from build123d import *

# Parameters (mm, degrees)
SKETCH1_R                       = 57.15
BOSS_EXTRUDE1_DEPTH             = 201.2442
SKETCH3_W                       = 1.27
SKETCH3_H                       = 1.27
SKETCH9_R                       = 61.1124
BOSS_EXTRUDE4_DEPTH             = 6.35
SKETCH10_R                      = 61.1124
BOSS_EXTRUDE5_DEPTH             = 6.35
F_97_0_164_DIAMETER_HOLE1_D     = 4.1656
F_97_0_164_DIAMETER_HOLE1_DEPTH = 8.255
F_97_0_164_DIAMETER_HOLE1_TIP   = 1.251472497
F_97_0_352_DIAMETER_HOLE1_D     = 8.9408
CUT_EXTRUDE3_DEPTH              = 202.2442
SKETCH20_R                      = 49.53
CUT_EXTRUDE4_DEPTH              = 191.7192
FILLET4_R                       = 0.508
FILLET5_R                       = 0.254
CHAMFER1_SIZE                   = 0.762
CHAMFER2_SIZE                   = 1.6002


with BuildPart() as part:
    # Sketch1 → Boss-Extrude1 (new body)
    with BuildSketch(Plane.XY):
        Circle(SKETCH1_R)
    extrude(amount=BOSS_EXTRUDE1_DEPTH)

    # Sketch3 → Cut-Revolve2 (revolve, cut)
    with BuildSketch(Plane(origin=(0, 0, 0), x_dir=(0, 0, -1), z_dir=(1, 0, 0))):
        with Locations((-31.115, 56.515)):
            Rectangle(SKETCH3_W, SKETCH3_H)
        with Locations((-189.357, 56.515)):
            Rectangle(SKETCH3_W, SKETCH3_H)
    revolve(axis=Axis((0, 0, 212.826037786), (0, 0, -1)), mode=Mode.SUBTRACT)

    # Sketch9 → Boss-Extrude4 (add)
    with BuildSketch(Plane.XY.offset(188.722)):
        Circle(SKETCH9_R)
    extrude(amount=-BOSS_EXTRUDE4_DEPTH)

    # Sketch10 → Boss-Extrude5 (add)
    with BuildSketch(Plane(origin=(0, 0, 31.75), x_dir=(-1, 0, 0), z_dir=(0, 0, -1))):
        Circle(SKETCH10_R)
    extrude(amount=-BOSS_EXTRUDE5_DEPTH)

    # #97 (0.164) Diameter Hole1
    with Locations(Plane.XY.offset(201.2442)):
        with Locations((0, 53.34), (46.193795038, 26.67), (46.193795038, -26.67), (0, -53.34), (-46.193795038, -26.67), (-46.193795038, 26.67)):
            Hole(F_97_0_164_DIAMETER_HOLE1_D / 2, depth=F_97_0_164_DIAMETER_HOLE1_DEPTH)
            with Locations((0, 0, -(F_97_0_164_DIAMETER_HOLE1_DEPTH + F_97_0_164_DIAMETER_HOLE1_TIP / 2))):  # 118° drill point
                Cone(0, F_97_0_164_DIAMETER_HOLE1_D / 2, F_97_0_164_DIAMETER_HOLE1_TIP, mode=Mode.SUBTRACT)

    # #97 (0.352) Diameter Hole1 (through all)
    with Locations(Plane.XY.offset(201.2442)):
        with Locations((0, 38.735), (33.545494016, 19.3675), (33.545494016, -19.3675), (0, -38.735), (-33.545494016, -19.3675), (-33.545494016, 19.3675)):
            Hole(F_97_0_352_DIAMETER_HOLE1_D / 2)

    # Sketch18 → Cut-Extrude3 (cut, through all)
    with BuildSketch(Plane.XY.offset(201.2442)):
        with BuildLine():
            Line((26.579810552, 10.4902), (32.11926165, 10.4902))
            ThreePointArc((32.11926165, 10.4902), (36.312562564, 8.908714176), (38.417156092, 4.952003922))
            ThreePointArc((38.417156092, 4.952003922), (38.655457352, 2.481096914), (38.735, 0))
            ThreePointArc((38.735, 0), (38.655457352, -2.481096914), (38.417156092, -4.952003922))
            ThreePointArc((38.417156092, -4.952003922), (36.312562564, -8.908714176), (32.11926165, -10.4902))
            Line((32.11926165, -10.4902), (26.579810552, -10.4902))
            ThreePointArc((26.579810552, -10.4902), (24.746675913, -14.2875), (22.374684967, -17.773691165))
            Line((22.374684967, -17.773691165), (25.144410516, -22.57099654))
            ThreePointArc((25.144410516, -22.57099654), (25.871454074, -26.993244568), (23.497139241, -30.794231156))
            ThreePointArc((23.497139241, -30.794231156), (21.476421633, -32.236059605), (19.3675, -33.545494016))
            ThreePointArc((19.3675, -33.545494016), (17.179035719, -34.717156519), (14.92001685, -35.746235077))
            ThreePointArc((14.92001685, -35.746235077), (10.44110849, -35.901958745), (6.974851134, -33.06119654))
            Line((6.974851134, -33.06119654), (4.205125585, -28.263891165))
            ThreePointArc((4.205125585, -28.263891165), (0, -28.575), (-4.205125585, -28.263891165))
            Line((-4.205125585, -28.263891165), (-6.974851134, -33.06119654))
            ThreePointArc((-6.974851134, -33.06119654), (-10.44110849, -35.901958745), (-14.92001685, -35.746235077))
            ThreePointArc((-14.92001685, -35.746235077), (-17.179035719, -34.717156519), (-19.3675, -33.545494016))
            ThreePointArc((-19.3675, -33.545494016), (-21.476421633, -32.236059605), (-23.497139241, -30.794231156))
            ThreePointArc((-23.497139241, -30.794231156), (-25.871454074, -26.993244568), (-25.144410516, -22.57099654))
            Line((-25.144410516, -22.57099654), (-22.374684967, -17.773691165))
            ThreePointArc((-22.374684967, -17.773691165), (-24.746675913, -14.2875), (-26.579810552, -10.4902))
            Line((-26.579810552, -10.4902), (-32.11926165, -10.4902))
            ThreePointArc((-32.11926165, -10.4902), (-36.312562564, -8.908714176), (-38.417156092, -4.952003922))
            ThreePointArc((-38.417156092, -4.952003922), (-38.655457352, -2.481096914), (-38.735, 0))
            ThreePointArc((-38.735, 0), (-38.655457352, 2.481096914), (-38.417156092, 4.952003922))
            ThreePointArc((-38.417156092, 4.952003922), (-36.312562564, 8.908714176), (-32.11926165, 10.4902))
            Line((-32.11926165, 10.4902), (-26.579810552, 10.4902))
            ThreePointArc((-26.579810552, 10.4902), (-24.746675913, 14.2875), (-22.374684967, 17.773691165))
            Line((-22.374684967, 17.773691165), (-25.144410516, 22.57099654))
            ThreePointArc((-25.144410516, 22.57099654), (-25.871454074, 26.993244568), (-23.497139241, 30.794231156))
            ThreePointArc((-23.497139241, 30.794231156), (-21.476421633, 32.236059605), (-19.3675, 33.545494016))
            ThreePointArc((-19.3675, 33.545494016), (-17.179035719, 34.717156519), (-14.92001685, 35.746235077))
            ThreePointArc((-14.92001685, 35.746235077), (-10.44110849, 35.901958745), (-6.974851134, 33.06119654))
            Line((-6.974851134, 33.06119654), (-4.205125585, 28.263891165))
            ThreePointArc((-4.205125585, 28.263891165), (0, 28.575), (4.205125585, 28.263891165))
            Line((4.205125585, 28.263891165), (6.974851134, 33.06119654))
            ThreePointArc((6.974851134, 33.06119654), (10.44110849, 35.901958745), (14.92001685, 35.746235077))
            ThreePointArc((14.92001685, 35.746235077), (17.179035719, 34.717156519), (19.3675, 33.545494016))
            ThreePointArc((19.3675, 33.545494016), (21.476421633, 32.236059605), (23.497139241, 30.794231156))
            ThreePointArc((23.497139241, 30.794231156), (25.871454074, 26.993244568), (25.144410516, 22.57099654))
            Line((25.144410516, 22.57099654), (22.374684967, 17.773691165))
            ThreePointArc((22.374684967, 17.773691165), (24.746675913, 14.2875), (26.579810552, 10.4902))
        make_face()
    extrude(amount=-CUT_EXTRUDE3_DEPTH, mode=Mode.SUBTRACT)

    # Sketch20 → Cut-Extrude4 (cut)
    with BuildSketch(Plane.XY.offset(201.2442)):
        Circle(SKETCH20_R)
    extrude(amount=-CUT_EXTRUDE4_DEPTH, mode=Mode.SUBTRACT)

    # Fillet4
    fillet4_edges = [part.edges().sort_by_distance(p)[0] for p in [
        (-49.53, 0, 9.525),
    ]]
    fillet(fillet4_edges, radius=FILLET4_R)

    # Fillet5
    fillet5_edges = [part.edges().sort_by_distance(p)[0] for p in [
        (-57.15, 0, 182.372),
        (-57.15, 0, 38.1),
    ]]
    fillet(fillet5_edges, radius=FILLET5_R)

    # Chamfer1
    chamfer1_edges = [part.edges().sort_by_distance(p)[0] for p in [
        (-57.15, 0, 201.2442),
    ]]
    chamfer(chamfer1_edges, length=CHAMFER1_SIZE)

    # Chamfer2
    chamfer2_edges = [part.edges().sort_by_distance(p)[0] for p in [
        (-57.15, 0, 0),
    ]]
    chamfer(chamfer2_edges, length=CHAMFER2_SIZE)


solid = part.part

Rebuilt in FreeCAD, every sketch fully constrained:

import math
import FreeCAD as App
import Part
import Sketcher

V = App.Vector
Q = App.Units.Quantity


def edges_at(feature, points):
    """Names of the edges that pass closest to the given points."""
    edges = feature.Shape.Edges
    near = lambda p: min(range(len(edges)), key=lambda i: edges[i].distToShape(Part.Vertex(*p))[0])
    return sorted({f"Edge{near(p) + 1}" for p in points})

doc = App.newDocument("Part")
body = doc.addObject("PartDesign::Body", "Body")

# Sketch on XY plane
sketch1 = body.newObject("Sketcher::SketchObject", "Sketch")
sketch1.AttachmentSupport = (doc.getObject("XY_Plane"), [""])
sketch1.MapMode = "FlatFace"
sketch1.addGeometry(Part.Circle(V(0, 0, 0), V(0, 0, 1), 57), False)
sketch1.addConstraint([
    Sketcher.Constraint("Coincident", 0, 3, -1, 1),
    Sketcher.Constraint("Diameter", 0, Q("4.5 in")),
])
pad1 = body.newObject("PartDesign::Pad", "Pad")
pad1.Profile = sketch1
pad1.Length = Q("7.923 in")

# Sketch on YZ plane
sketch2 = body.newObject("Sketcher::SketchObject", "Sketch001")
sketch2.AttachmentSupport = (doc.getObject("YZ_Plane"), [""])
sketch2.MapMode = "FlatFace"
sketch2.addGeometry([
    Part.LineSegment(V(57.1, 31.8, 0), V(55.9, 31.8, 0)),  # 0
    Part.LineSegment(V(55.9, 31.8, 0), V(55.9, 30.5, 0)),  # 1
    Part.LineSegment(V(55.9, 30.5, 0), V(57.1, 30.5, 0)),  # 2
    Part.LineSegment(V(57.1, 30.5, 0), V(57.1, 31.8, 0)),  # 3
    Part.LineSegment(V(57.1, 190, 0), V(55.9, 190, 0)),  # 4
    Part.LineSegment(V(55.9, 190, 0), V(55.9, 188.7, 0)),  # 5
    Part.LineSegment(V(55.9, 188.7, 0), V(57.1, 188.7, 0)),  # 6
    Part.LineSegment(V(57.1, 188.7, 0), V(57.1, 190, 0)),  # 7
], False)
sketch2.addConstraint([
    Sketcher.Constraint("Coincident", 0, 2, 1, 1),
    Sketcher.Constraint("Coincident", 1, 2, 2, 1),
    Sketcher.Constraint("Coincident", 2, 2, 3, 1),
    Sketcher.Constraint("Coincident", 3, 2, 0, 1),
    Sketcher.Constraint("Coincident", 4, 2, 5, 1),
    Sketcher.Constraint("Coincident", 5, 2, 6, 1),
    Sketcher.Constraint("Coincident", 6, 2, 7, 1),
    Sketcher.Constraint("Coincident", 7, 2, 4, 1),
    Sketcher.Constraint("Horizontal", 0),
    Sketcher.Constraint("Vertical", 1),
    Sketcher.Constraint("Horizontal", 2),
    Sketcher.Constraint("Vertical", 3),
    Sketcher.Constraint("Horizontal", 4),
    Sketcher.Constraint("Vertical", 5),
    Sketcher.Constraint("Horizontal", 6),
    Sketcher.Constraint("Vertical", 7),
    Sketcher.Constraint("Vertical", 1, 2, 4, 2),
    Sketcher.Constraint("Vertical", 3, 2, 6, 2),
    Sketcher.Constraint("Equal", 6, 1),
    Sketcher.Constraint("Equal", 3, 5),
    Sketcher.Constraint("DistanceX", 0, 2, 0, 1, Q("0.05 in")),
    Sketcher.Constraint("DistanceX", -1, 1, 0, 2, Q("2.2 in")),
    Sketcher.Constraint("DistanceY", -1, 1, 1, 2, Q("1.2 in")),
    Sketcher.Constraint("DistanceY", -1, 1, 4, 2, Q("7.48 in")),
])
groove = body.newObject("PartDesign::Groove", "Groove")
groove.Profile = sketch2
groove.ReferenceAxis = (sketch2, ["V_Axis"])
groove.Angle = 360

# Sketch on XY plane
sketch3 = body.newObject("Sketcher::SketchObject", "Sketch002")
sketch3.AttachmentSupport = (doc.getObject("XY_Plane"), [""])
sketch3.MapMode = "FlatFace"
sketch3.AttachmentOffset = App.Placement(V(0, 0, 7.43 * 25.4), App.Rotation())
sketch3.addGeometry(Part.Circle(V(0, 0, 0), V(0, 0, 1), 61), False)
sketch3.addConstraint([
    Sketcher.Constraint("Coincident", 0, 3, -1, 1),
    Sketcher.Constraint("Diameter", 0, Q("4.812 in")),
])
pad2 = body.newObject("PartDesign::Pad", "Pad001")
pad2.Profile = sketch3
pad2.Length = Q("0.25 in")
pad2.Reversed = True

# Sketch on XY plane
sketch4 = body.newObject("Sketcher::SketchObject", "Sketch003")
sketch4.AttachmentSupport = (doc.getObject("XY_Plane"), [""])
sketch4.MapMode = "FlatFace"
sketch4.AttachmentOffset = App.Placement(V(0, 0, 1.25 * 25.4), App.Rotation())
sketch4.addGeometry(Part.Circle(V(0, 0, 0), V(0, 0, 1), 61), False)
sketch4.addConstraint([
    Sketcher.Constraint("Coincident", 0, 3, -1, 1),
    Sketcher.Constraint("Diameter", 0, Q("4.812 in")),
])
pad3 = body.newObject("PartDesign::Pad", "Pad002")
pad3.Profile = sketch4
pad3.Length = Q("0.25 in")

# Sketch on XY plane
sketch5 = body.newObject("Sketcher::SketchObject", "Sketch004")
sketch5.AttachmentSupport = (doc.getObject("XY_Plane"), [""])
sketch5.MapMode = "FlatFace"
sketch5.AttachmentOffset = App.Placement(V(0, 0, 7.923 * 25.4), App.Rotation())
sketch5.addGeometry([
    Part.Circle(V(0, 53.3, 0), V(0, 0, 1), 2.1),  # 0
    Part.Circle(V(46.2, 26.7, 0), V(0, 0, 1), 2.1),  # 1
    Part.Circle(V(46.2, -26.7, 0), V(0, 0, 1), 2.1),  # 2
    Part.Circle(V(0, -53.3, 0), V(0, 0, 1), 2.1),  # 3
    Part.Circle(V(-46.2, -26.7, 0), V(0, 0, 1), 2.1),  # 4
    Part.Circle(V(-46.2, 26.7, 0), V(0, 0, 1), 2.1),  # 5
], False)
sketch5.addConstraint([
    Sketcher.Constraint("Equal", 0, 1),
    Sketcher.Constraint("Equal", 1, 2),
    Sketcher.Constraint("Equal", 2, 3),
    Sketcher.Constraint("Equal", 3, 4),
    Sketcher.Constraint("Equal", 4, 5),
    Sketcher.Constraint("Symmetric", 0, 3, 3, 3, -1, 1),
    Sketcher.Constraint("Symmetric", 1, 3, 4, 3, -1, 1),
    Sketcher.Constraint("Symmetric", 2, 3, 5, 3, -1, 1),
    Sketcher.Constraint("Symmetric", 2, 3, 4, 3, -2),
    Sketcher.Constraint("PointOnObject", 0, 3, -2),
    Sketcher.Constraint("Diameter", 0, Q("0.164 in")),
    Sketcher.Constraint("DistanceY", -1, 1, 0, 3, Q("2.1 in")),
    Sketcher.Constraint("DistanceY", 2, 3, 1, 3, Q("2.1 in")),
    Sketcher.Constraint("DistanceX", 4, 3, 2, 3, 92.38759),
])
doc.recompute()
hole = body.newObject("PartDesign::Hole", "Hole")
hole.Profile = sketch5
hole.ThreadType = "None"
hole.Diameter = Q("0.164 in")
hole.DepthType = "Dimension"
hole.Depth = Q("0.325 in")
hole.DrillPoint = "Angled"
hole.DrillPointAngle = 118

# Sketch on XY plane
sketch6 = body.newObject("Sketcher::SketchObject", "Sketch005")
sketch6.AttachmentSupport = (doc.getObject("XY_Plane"), [""])
sketch6.MapMode = "FlatFace"
sketch6.AttachmentOffset = App.Placement(V(0, 0, 7.923 * 25.4), App.Rotation())
sketch6.addGeometry([
    Part.Circle(V(0, 38.7, 0), V(0, 0, 1), 4.5),  # 0
    Part.Circle(V(33.5, 19.4, 0), V(0, 0, 1), 4.5),  # 1
    Part.Circle(V(33.5, -19.4, 0), V(0, 0, 1), 4.5),  # 2
    Part.Circle(V(0, -38.7, 0), V(0, 0, 1), 4.5),  # 3
    Part.Circle(V(-33.5, -19.4, 0), V(0, 0, 1), 4.5),  # 4
    Part.Circle(V(-33.5, 19.4, 0), V(0, 0, 1), 4.5),  # 5
], False)
sketch6.addConstraint([
    Sketcher.Constraint("Equal", 0, 1),
    Sketcher.Constraint("Equal", 1, 2),
    Sketcher.Constraint("Equal", 2, 3),
    Sketcher.Constraint("Equal", 3, 4),
    Sketcher.Constraint("Equal", 4, 5),
    Sketcher.Constraint("Symmetric", 0, 3, 3, 3, -1, 1),
    Sketcher.Constraint("Symmetric", 1, 3, 4, 3, -1, 1),
    Sketcher.Constraint("Symmetric", 2, 3, 5, 3, -1, 1),
    Sketcher.Constraint("Symmetric", 2, 3, 4, 3, -2),
    Sketcher.Constraint("PointOnObject", 0, 3, -2),
    Sketcher.Constraint("Diameter", 0, Q("0.352 in")),
    Sketcher.Constraint("DistanceY", 3, 3, 0, 3, Q("3.05 in")),
    Sketcher.Constraint("DistanceY", 2, 3, 1, 3, Q("1.525 in")),
    Sketcher.Constraint("DistanceX", 4, 3, 2, 3, 67.090988),
])
doc.recompute()
hole2 = body.newObject("PartDesign::Hole", "Hole001")
hole2.Profile = sketch6
hole2.ThreadType = "None"
hole2.Diameter = Q("0.352 in")
hole2.DepthType = "ThroughAll"

# Sketch on XY plane
sketch7 = body.newObject("Sketcher::SketchObject", "Sketch006")
sketch7.AttachmentSupport = (doc.getObject("XY_Plane"), [""])
sketch7.MapMode = "FlatFace"
sketch7.AttachmentOffset = App.Placement(V(0, 0, 7.923 * 25.4), App.Rotation())
sketch7.addGeometry([
    Part.LineSegment(V(32.1, 10.5, 0), V(26.6, 10.5, 0)),  # 0
    Part.ArcOfCircle(Part.Circle(V(0, 0, 0), V(0, 0, 1), 28.6), math.radians(21.54), math.radians(38.46)),  # 1
    Part.LineSegment(V(22.4, 17.8, 0), V(25.1, 22.6, 0)),  # 2
    Part.ArcOfCircle(Part.Circle(V(19.6, 25.7, 0), V(0, 0, 1), 6.3), math.radians(-30), math.radians(53)),  # 3
    Part.ArcOfCircle(Part.Circle(V(0, 0, 0), V(0, 0, 1), 38.7), math.radians(52.66), math.radians(60)),  # 4
    Part.ArcOfCircle(Part.Circle(V(0, 0, 0), V(0, 0, 1), 38.7), math.radians(60), math.radians(67.34)),  # 5
    Part.ArcOfCircle(Part.Circle(V(12.5, 29.9, 0), V(0, 0, 1), 6.3), math.radians(67), math.radians(150)),  # 6
    Part.LineSegment(V(7, 33.1, 0), V(4.2, 28.3, 0)),  # 7
    Part.ArcOfCircle(Part.Circle(V(0, 0, 0), V(0, 0, 1), 28.6), math.radians(81.54), math.radians(98.46)),  # 8
    Part.LineSegment(V(-4.2, 28.3, 0), V(-7, 33.1, 0)),  # 9
    Part.ArcOfCircle(Part.Circle(V(-12.5, 29.9, 0), V(0, 0, 1), 6.3), math.radians(30), math.radians(113)),  # 10
    Part.ArcOfCircle(Part.Circle(V(0, 0, 0), V(0, 0, 1), 38.7), math.radians(112.66), math.radians(120)),  # 11
    Part.ArcOfCircle(Part.Circle(V(0, 0, 0), V(0, 0, 1), 38.7), math.radians(120), math.radians(127.34)),  # 12
    Part.ArcOfCircle(Part.Circle(V(-19.6, 25.7, 0), V(0, 0, 1), 6.3), math.radians(127), math.radians(210)),  # 13
    Part.LineSegment(V(-25.1, 22.6, 0), V(-22.4, 17.8, 0)),  # 14
    Part.ArcOfCircle(Part.Circle(V(0, 0, 0), V(0, 0, 1), 28.6), math.radians(141.54), math.radians(158.46)),  # 15
    Part.LineSegment(V(-26.6, 10.5, 0), V(-32.1, 10.5, 0)),  # 16
    Part.ArcOfCircle(Part.Circle(V(-32.1, 4.1, 0), V(0, 0, 1), 6.4), math.radians(90), math.radians(173)),  # 17
    Part.ArcOfCircle(Part.Circle(V(0, 0, 0), V(0, 0, 1), 38.7), math.radians(172.66), math.radians(180)),  # 18
    Part.ArcOfCircle(Part.Circle(V(0, 0, 0), V(0, 0, 1), 38.7), math.radians(-180), math.radians(-172.66)),  # 19
    Part.ArcOfCircle(Part.Circle(V(-32.1, -4.1, 0), V(0, 0, 1), 6.4), math.radians(-173), math.radians(-90)),  # 20
    Part.LineSegment(V(-32.1, -10.5, 0), V(-26.6, -10.5, 0)),  # 21
    Part.ArcOfCircle(Part.Circle(V(0, 0, 0), V(0, 0, 1), 28.6), math.radians(-158.46), math.radians(-141.54)),  # 22
    Part.LineSegment(V(-22.4, -17.8, 0), V(-25.1, -22.6, 0)),  # 23
    Part.ArcOfCircle(Part.Circle(V(-19.6, -25.7, 0), V(0, 0, 1), 6.3), math.radians(150), math.radians(233)),  # 24
    Part.ArcOfCircle(Part.Circle(V(0, 0, 0), V(0, 0, 1), 38.7), math.radians(-127.34), math.radians(-120)),  # 25
    Part.ArcOfCircle(Part.Circle(V(0, 0, 0), V(0, 0, 1), 38.7), math.radians(-120), math.radians(-112.66)),  # 26
    Part.ArcOfCircle(Part.Circle(V(-12.5, -29.9, 0), V(0, 0, 1), 6.3), math.radians(-113), math.radians(-30)),  # 27
    Part.LineSegment(V(-7, -33.1, 0), V(-4.2, -28.3, 0)),  # 28
    Part.ArcOfCircle(Part.Circle(V(0, 0, 0), V(0, 0, 1), 28.6), math.radians(-98.46), math.radians(-81.54)),  # 29
    Part.LineSegment(V(4.2, -28.3, 0), V(7, -33.1, 0)),  # 30
    Part.ArcOfCircle(Part.Circle(V(12.5, -29.9, 0), V(0, 0, 1), 6.3), math.radians(-150), math.radians(-67)),  # 31
    Part.ArcOfCircle(Part.Circle(V(0, 0, 0), V(0, 0, 1), 38.7), math.radians(-67.34), math.radians(-60)),  # 32
    Part.ArcOfCircle(Part.Circle(V(0, 0, 0), V(0, 0, 1), 38.7), math.radians(-60), math.radians(-52.66)),  # 33
    Part.ArcOfCircle(Part.Circle(V(19.6, -25.7, 0), V(0, 0, 1), 6.3), math.radians(-53), math.radians(30)),  # 34
    Part.LineSegment(V(25.1, -22.6, 0), V(22.4, -17.8, 0)),  # 35
    Part.ArcOfCircle(Part.Circle(V(0, 0, 0), V(0, 0, 1), 28.6), math.radians(-38.46), math.radians(-21.54)),  # 36
    Part.LineSegment(V(26.6, -10.5, 0), V(32.1, -10.5, 0)),  # 37
    Part.ArcOfCircle(Part.Circle(V(32.1, -4.1, 0), V(0, 0, 1), 6.4), math.radians(-90), math.radians(-7)),  # 38
    Part.ArcOfCircle(Part.Circle(V(0, 0, 0), V(0, 0, 1), 38.7), math.radians(-7.34), math.radians(0)),  # 39
    Part.ArcOfCircle(Part.Circle(V(0, 0, 0), V(0, 0, 1), 38.7), math.radians(0), math.radians(7.34)),  # 40
    Part.ArcOfCircle(Part.Circle(V(32.1, 4.1, 0), V(0, 0, 1), 6.4), math.radians(7), math.radians(90)),  # 41
], False)
sketch7.addConstraint([
    Sketcher.Constraint("Coincident", 0, 2, 1, 1),
    Sketcher.Constraint("Coincident", 1, 2, 2, 1),
    Sketcher.Constraint("Tangent", 2, 2, 3, 1),
    Sketcher.Constraint("Tangent", 3, 2, 4, 1),
    Sketcher.Constraint("Tangent", 4, 2, 5, 1),
    Sketcher.Constraint("Tangent", 5, 2, 6, 1),
    Sketcher.Constraint("Tangent", 6, 2, 7, 1),
    Sketcher.Constraint("Coincident", 7, 2, 8, 1),
    Sketcher.Constraint("Coincident", 8, 2, 9, 1),
    Sketcher.Constraint("Tangent", 9, 2, 10, 1),
    Sketcher.Constraint("Tangent", 10, 2, 11, 1),
    Sketcher.Constraint("Tangent", 11, 2, 12, 1),
    Sketcher.Constraint("Tangent", 12, 2, 13, 1),
    Sketcher.Constraint("Tangent", 13, 2, 14, 1),
    Sketcher.Constraint("Coincident", 14, 2, 15, 1),
    Sketcher.Constraint("Coincident", 15, 2, 16, 1),
    Sketcher.Constraint("Tangent", 16, 2, 17, 1),
    Sketcher.Constraint("Tangent", 17, 2, 18, 1),
    Sketcher.Constraint("Tangent", 18, 2, 19, 1),
    Sketcher.Constraint("Tangent", 19, 2, 20, 1),
    Sketcher.Constraint("Tangent", 20, 2, 21, 1),
    Sketcher.Constraint("Coincident", 21, 2, 22, 1),
    Sketcher.Constraint("Coincident", 22, 2, 23, 1),
    Sketcher.Constraint("Tangent", 23, 2, 24, 1),
    Sketcher.Constraint("Tangent", 24, 2, 25, 1),
    Sketcher.Constraint("Tangent", 25, 2, 26, 1),
    Sketcher.Constraint("Tangent", 26, 2, 27, 1),
    Sketcher.Constraint("Tangent", 27, 2, 28, 1),
    Sketcher.Constraint("Coincident", 28, 2, 29, 1),
    Sketcher.Constraint("Coincident", 29, 2, 30, 1),
    Sketcher.Constraint("Tangent", 30, 2, 31, 1),
    Sketcher.Constraint("Tangent", 31, 2, 32, 1),
    Sketcher.Constraint("Tangent", 32, 2, 33, 1),
    Sketcher.Constraint("Tangent", 33, 2, 34, 1),
    Sketcher.Constraint("Tangent", 34, 2, 35, 1),
    Sketcher.Constraint("Coincident", 35, 2, 36, 1),
    Sketcher.Constraint("Coincident", 36, 2, 37, 1),
    Sketcher.Constraint("Tangent", 37, 2, 38, 1),
    Sketcher.Constraint("Tangent", 38, 2, 39, 1),
    Sketcher.Constraint("Tangent", 39, 2, 40, 1),
    Sketcher.Constraint("Tangent", 40, 2, 41, 1),
    Sketcher.Constraint("Tangent", 41, 2, 0, 1),
    Sketcher.Constraint("Horizontal", 0),
    Sketcher.Constraint("Horizontal", 16),
    Sketcher.Constraint("Horizontal", 21),
    Sketcher.Constraint("Horizontal", 37),
    Sketcher.Constraint("Coincident", 1, 3, -1, 1),
    Sketcher.Constraint("Coincident", 4, 3, -1, 1),
    Sketcher.Constraint("Coincident", 8, 3, -1, 1),
    Sketcher.Constraint("Coincident", 11, 3, -1, 1),
    Sketcher.Constraint("Coincident", 15, 3, -1, 1),
    Sketcher.Constraint("Coincident", 18, 3, -1, 1),
    Sketcher.Constraint("Coincident", 22, 3, -1, 1),
    Sketcher.Constraint("Coincident", 25, 3, -1, 1),
    Sketcher.Constraint("Coincident", 29, 3, -1, 1),
    Sketcher.Constraint("Coincident", 32, 3, -1, 1),
    Sketcher.Constraint("Coincident", 36, 3, -1, 1),
    Sketcher.Constraint("Coincident", 39, 3, -1, 1),
    Sketcher.Constraint("Equal", 4, 5),
    Sketcher.Constraint("Equal", 3, 6),
    Sketcher.Constraint("Equal", 1, 8),
    Sketcher.Constraint("Equal", 6, 10),
    Sketcher.Constraint("Equal", 5, 11),
    Sketcher.Constraint("Equal", 11, 12),
    Sketcher.Constraint("Equal", 10, 13),
    Sketcher.Constraint("Equal", 8, 15),
    Sketcher.Constraint("Equal", 13, 17),
    Sketcher.Constraint("Equal", 12, 18),
    Sketcher.Constraint("Equal", 18, 19),
    Sketcher.Constraint("Equal", 17, 20),
    Sketcher.Constraint("Equal", 15, 22),
    Sketcher.Constraint("Equal", 20, 24),
    Sketcher.Constraint("Equal", 19, 25),
    Sketcher.Constraint("Equal", 25, 26),
    Sketcher.Constraint("Equal", 24, 27),
    Sketcher.Constraint("Equal", 22, 29),
    Sketcher.Constraint("Equal", 27, 31),
    Sketcher.Constraint("Equal", 26, 32),
    Sketcher.Constraint("Equal", 32, 33),
    Sketcher.Constraint("Equal", 31, 34),
    Sketcher.Constraint("Equal", 29, 36),
    Sketcher.Constraint("Equal", 34, 38),
    Sketcher.Constraint("Equal", 33, 39),
    Sketcher.Constraint("Equal", 39, 40),
    Sketcher.Constraint("Equal", 38, 41),
    Sketcher.Constraint("Symmetric", 2, 2, 23, 2, -1, 1),
    Sketcher.Constraint("Symmetric", 6, 2, 27, 2, -1, 1),
    Sketcher.Constraint("Symmetric", 9, 2, 30, 2, -1, 1),
    Sketcher.Constraint("Symmetric", 13, 2, 34, 2, -1, 1),
    Sketcher.Constraint("Symmetric", 6, 2, 9, 2, -2),
    Sketcher.Constraint("Symmetric", 2, 2, 13, 2, -2),
    Sketcher.Constraint("PointOnObject", 18, 2, -1),
    Sketcher.Constraint("PointOnObject", 39, 2, -1),
    Sketcher.Constraint("Parallel", 2, 7),
    Sketcher.Constraint("Horizontal", 20, 3, 38, 3),
    Sketcher.Constraint("Horizontal", 17, 3, 41, 3),
    Sketcher.Constraint("Horizontal", 4, 2, 11, 2),
    Sketcher.Constraint("Horizontal", 25, 2, 32, 2),
    Sketcher.Constraint("Vertical", 17, 3, 20, 3),
    Sketcher.Constraint("Vertical", 11, 2, 25, 2),
    Sketcher.Constraint("Equal", 2, 7),
    Sketcher.Constraint("Radius", 3, Q("0.25 in")),
    Sketcher.Constraint("Angle", 2, Q("60 deg")),
    Sketcher.Constraint("Radius", 1, Q("1.125 in")),
    Sketcher.Constraint("Radius", 4, Q("1.525 in")),
    Sketcher.Constraint("DistanceY", -1, 1, 17, 3, Q("0.163 in")),
    Sketcher.Constraint("DistanceX", -1, 1, 4, 2, Q("0.7625 in")),
    Sketcher.Constraint("Distance", 2, 5.539451),
])
pocket1 = body.newObject("PartDesign::Pocket", "Pocket")
pocket1.Profile = sketch7
pocket1.Type = "ThroughAll"

# Sketch on XY plane
sketch8 = body.newObject("Sketcher::SketchObject", "Sketch007")
sketch8.AttachmentSupport = (doc.getObject("XY_Plane"), [""])
sketch8.MapMode = "FlatFace"
sketch8.AttachmentOffset = App.Placement(V(0, 0, 7.923 * 25.4), App.Rotation())
sketch8.addGeometry(Part.Circle(V(0, 0, 0), V(0, 0, 1), 50), False)
sketch8.addConstraint([
    Sketcher.Constraint("Coincident", 0, 3, -1, 1),
    Sketcher.Constraint("Diameter", 0, Q("3.9 in")),
])
pocket2 = body.newObject("PartDesign::Pocket", "Pocket001")
pocket2.Profile = sketch8
pocket2.Length = Q("7.548 in")
doc.recompute()

fillet = body.newObject("PartDesign::Fillet", "Fillet")
fillet.Base = (pocket2, edges_at(pocket2, [(-49.53, 0, 9.525)]))
fillet.Radius = Q("0.02 in")
doc.recompute()

fillet2 = body.newObject("PartDesign::Fillet", "Fillet001")
fillet2.Base = (fillet, edges_at(fillet, [(-57.15, 0, 182.372), (-57.15, 0, 38.1)]))
fillet2.Radius = Q("0.01 in")
doc.recompute()

chamfer = body.newObject("PartDesign::Chamfer", "Chamfer")
chamfer.Base = (fillet2, edges_at(fillet2, [(-57.15, 0, 201.244)]))
chamfer.Size = Q("0.03 in")
doc.recompute()

chamfer2 = body.newObject("PartDesign::Chamfer", "Chamfer001")
chamfer2.Base = (chamfer, edges_at(chamfer, [(-57.15, 0, 0)]))
chamfer2.Size = Q("0.063 in")

doc.recompute()
